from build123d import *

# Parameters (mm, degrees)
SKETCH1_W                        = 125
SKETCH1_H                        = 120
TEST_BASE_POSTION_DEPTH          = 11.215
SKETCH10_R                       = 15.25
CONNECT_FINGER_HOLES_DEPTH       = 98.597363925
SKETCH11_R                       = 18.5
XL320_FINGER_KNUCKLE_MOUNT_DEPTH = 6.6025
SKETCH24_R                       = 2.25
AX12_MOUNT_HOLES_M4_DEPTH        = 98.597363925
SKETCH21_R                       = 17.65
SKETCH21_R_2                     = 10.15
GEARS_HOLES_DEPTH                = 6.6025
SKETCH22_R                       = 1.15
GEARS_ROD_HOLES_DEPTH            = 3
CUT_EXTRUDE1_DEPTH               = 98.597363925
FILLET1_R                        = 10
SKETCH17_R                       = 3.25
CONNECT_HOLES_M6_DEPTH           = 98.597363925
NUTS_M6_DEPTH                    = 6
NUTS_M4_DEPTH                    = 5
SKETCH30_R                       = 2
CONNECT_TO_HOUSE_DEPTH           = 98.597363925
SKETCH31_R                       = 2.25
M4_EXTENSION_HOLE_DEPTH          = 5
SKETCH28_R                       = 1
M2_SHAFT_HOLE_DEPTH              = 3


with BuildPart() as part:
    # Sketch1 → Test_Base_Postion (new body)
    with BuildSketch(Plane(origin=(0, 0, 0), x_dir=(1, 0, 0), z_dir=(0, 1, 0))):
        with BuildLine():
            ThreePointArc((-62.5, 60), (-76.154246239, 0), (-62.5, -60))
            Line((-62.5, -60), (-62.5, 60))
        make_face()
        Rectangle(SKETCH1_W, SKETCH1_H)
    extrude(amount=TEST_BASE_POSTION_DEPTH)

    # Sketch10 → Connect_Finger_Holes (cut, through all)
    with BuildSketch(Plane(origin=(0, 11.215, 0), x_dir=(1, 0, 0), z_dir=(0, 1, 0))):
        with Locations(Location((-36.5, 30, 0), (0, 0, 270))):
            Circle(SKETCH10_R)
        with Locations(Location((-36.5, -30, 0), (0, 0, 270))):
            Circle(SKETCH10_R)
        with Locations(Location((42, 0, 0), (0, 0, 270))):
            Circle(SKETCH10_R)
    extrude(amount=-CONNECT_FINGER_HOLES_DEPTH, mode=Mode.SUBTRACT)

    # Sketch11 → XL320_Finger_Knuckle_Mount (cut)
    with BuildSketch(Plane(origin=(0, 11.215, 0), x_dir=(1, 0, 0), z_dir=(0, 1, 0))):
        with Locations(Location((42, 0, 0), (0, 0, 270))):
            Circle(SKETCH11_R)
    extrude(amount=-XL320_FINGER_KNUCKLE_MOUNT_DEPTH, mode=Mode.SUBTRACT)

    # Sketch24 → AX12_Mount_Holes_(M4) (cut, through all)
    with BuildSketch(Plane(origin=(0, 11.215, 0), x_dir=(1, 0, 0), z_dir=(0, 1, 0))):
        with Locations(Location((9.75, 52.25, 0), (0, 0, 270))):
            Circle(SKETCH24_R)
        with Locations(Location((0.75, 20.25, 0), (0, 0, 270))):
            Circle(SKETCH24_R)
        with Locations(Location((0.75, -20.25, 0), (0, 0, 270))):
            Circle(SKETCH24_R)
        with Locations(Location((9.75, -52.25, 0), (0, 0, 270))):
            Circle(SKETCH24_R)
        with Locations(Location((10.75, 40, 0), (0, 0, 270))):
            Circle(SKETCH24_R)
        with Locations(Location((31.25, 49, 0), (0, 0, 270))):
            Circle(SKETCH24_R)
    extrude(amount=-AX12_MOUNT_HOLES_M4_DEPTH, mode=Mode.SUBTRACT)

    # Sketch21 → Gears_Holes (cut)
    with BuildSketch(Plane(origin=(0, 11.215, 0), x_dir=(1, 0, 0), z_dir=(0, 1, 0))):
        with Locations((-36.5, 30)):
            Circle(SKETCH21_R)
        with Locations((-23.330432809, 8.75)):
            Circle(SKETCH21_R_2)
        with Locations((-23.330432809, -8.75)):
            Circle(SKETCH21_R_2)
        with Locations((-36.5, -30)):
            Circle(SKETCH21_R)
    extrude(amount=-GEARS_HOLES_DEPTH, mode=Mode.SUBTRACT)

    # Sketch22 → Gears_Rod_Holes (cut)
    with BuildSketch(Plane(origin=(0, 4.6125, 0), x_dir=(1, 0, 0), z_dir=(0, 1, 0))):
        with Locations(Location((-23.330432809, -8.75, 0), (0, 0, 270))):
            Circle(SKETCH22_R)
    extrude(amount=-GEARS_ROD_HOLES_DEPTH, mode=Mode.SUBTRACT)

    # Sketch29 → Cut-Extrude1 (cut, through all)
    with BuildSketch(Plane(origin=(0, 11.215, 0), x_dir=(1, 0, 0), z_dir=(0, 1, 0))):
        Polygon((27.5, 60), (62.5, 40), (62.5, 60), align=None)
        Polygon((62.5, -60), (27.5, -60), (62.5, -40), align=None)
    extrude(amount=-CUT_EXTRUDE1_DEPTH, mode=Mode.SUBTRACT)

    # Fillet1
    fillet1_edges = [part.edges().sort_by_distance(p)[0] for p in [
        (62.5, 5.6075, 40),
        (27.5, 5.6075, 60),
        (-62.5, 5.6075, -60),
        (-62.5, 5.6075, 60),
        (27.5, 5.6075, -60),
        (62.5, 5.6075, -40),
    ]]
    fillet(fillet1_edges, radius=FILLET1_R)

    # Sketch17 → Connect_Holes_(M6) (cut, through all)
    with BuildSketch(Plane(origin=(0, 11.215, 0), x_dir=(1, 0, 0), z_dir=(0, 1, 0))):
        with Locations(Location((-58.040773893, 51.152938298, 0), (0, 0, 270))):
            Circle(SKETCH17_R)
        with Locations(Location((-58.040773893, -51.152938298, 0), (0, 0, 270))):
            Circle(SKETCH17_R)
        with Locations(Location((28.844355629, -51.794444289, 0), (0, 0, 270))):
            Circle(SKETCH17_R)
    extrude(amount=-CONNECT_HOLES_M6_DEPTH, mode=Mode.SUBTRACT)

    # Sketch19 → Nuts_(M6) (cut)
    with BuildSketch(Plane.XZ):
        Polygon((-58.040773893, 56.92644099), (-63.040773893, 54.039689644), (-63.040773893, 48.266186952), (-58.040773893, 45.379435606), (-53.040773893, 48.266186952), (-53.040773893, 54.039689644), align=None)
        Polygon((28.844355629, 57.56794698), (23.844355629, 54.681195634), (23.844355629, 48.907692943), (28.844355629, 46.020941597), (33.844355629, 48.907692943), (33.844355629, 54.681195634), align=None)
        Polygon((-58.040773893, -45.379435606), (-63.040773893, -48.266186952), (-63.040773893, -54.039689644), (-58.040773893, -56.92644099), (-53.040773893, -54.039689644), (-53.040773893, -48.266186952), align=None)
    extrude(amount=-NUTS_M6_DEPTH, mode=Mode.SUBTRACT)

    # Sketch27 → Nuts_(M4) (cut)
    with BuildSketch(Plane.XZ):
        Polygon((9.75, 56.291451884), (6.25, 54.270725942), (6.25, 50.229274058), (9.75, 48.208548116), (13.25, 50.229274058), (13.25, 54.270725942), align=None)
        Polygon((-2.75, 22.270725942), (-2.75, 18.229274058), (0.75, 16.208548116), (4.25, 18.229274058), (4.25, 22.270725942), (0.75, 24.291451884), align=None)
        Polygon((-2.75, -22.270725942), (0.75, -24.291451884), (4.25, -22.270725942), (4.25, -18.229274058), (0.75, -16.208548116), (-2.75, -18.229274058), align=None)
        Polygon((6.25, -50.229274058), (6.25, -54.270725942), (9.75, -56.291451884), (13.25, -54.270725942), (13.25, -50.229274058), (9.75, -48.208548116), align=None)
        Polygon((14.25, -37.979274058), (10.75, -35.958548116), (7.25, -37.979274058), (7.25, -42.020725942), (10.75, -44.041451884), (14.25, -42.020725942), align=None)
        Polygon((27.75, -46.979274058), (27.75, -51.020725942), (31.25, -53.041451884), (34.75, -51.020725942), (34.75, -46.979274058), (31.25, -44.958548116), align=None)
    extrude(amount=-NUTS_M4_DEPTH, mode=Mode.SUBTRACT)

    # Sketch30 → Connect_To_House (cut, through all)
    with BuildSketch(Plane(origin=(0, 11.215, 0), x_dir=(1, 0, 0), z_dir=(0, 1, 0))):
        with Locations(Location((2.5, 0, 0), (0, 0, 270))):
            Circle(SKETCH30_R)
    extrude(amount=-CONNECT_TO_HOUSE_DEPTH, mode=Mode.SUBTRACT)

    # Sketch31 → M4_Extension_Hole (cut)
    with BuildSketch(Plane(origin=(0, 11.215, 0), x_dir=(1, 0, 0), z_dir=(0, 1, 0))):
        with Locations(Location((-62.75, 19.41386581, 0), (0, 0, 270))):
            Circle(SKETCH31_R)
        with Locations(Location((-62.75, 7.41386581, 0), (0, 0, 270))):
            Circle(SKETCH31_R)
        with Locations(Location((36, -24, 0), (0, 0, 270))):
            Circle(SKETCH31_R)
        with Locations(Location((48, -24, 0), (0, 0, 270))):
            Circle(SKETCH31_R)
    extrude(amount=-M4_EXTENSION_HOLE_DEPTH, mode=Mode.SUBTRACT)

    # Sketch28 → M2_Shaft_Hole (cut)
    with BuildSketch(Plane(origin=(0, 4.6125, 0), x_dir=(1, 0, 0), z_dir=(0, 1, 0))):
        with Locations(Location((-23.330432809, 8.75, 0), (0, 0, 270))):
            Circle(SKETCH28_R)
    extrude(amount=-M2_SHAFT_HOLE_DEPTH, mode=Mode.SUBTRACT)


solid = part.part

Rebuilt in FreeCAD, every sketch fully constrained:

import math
import FreeCAD as App
import Part
import Sketcher
from FreeCAD import Vector
Q = App.Units.Quantity


def edges_at(feature, points):
    """Names of the edges that pass closest to the given points."""
    edges = feature.Shape.Edges
    near = lambda p: min(range(len(edges)), key=lambda i: edges[i].distToShape(Part.Vertex(*p))[0])
    return sorted({f"Edge{near(p) + 1}" for p in points})

doc = App.newDocument("Part")
params = doc.addObject("Spreadsheet::Sheet", "Params")
for row, (alias, value) in enumerate([
    ("sketch1_width", "125 mm"),
    ("sketch1_height", "120 mm"),
    ("pad1_length", "11.215 mm"),
    ("sketch2_diameter", "30.5 mm"),
    ("sketch3_diameter", "37 mm"),
    ("pocket2_length", "6.6025 mm"),
    ("sketch4_diameter", "4.5 mm"),
    ("sketch5_radius", "10.15 mm"),
    ("sketch5_radius2", "17.65 mm"),
    ("pocket4_length", "6.6025 mm"),
    ("sketch6_diameter", "2.3 mm"),
    ("pocket5_length", "3 mm"),
    ("sketch7_width", "35 mm"),
    ("sketch7_height", "20 mm"),
    ("fillet_radius", "10 mm"),
    ("sketch8_diameter", "6.5 mm"),
    ("pocket8_length", "6 mm"),
    ("pocket9_length", "5 mm"),
    ("sketch11_diameter", "4 mm"),
    ("sketch12_diameter", "4.5 mm"),
    ("pocket11_length", "5 mm"),
    ("sketch13_diameter", "2 mm"),
    ("pocket12_length", "3 mm"),
], start=1):
    params.set(f"A{row}", alias)
    params.set(f"B{row}", "=" + value)
    params.setAlias(f"B{row}", alias)

body = doc.addObject("PartDesign::Body", "Body")

# Sketch on XZ plane
sketch1 = body.newObject("Sketcher::SketchObject", "Sketch")
sketch1.AttachmentSupport = (doc.getObject("XZ_Plane"), [""])
sketch1.MapMode = "FlatFace"
sketch1.addGeometry([
    Part.ArcOfCircle(Part.Circle(Vector(62.5, 0, 0), Vector(0, 0, 1), 138.654246), math.radians(154.358994), math.radians(205.641006)),
    Part.LineSegment(Vector(-62.5, 60, 0), Vector(62.5, 60, 0)),
    Part.LineSegment(Vector(62.5, 60, 0), Vector(62.5, -60, 0)),
    Part.LineSegment(Vector(62.5, -60, 0), Vector(-62.5, -60, 0)),
], False)
sketch1.addConstraint([
    Sketcher.Constraint("Coincident", 0, 1, 1, 1),
    Sketcher.Constraint("Coincident", 1, 2, 2, 1),
    Sketcher.Constraint("Coincident", 2, 2, 3, 1),
    Sketcher.Constraint("Coincident", 3, 2, 0, 2),
    Sketcher.Constraint("Horizontal", 1),
    Sketcher.Constraint("Vertical", 2),
    Sketcher.Constraint("Horizontal", 3),
    Sketcher.Constraint("Symmetric", 0, 1, 2, 2, -1, 1),
    Sketcher.Constraint("PointOnObject", 0, 3, -1),
    Sketcher.Constraint("Vertical", 0, 3, 1, 2),
    Sketcher.Constraint("DistanceX", 1, 1, 1, 2, 125.0),
    Sketcher.Constraint("DistanceY", 2, 2, 2, 1, 120.0),
])
sketch1.setExpression("Constraints[10]", "Params.sketch1_width")
sketch1.setExpression("Constraints[11]", "Params.sketch1_height")
pad1 = body.newObject("PartDesign::Pad", "Pad")
pad1.Profile = sketch1
pad1.setExpression("Length", "Params.pad1_length")
pad1.Reversed = True

# Sketch on XZ plane
sketch2 = body.newObject("Sketcher::SketchObject", "Sketch001")
sketch2.AttachmentSupport = (doc.getObject("XZ_Plane"), [""])
sketch2.MapMode = "FlatFace"
sketch2.AttachmentOffset = App.Placement(Vector(0, 0, -11.215), App.Rotation())
sketch2.addGeometry([
    Part.Circle(Vector(-36.5, -30, 0), Vector(0, 0, 1), 15.25),
    Part.Circle(Vector(-36.5, 30, 0), Vector(0, 0, 1), 15.25),
    Part.Circle(Vector(42, 0, 0), Vector(0, 0, 1), 15.25),
], False)
sketch2.addConstraint([
    Sketcher.Constraint("Equal", 0, 1),
    Sketcher.Constraint("Equal", 1, 2),
    Sketcher.Constraint("Symmetric", 0, 3, 1, 3, -1),
    Sketcher.Constraint("PointOnObject", 2, 3, -1),
    Sketcher.Constraint("Diameter", 0, 30.5),
    Sketcher.Constraint("DistanceY", 0, 3, -1, 1, 30.0),
    Sketcher.Constraint("DistanceX", -1, 1, 2, 3, 42.0),
    Sketcher.Constraint("DistanceX", 0, 3, -1, 1, 36.5),
])
sketch2.setExpression("Constraints[4]", "Params.sketch2_diameter")
pocket1 = body.newObject("PartDesign::Pocket", "Pocket")
pocket1.Profile = sketch2
pocket1.Type = "ThroughAll"
pocket1.Reversed = True

# Sketch on XZ plane
sketch3 = body.newObject("Sketcher::SketchObject", "Sketch002")
sketch3.AttachmentSupport = (doc.getObject("XZ_Plane"), [""])
sketch3.MapMode = "FlatFace"
sketch3.AttachmentOffset = App.Placement(Vector(0, 0, -11.215), App.Rotation())
sketch3.addGeometry(Part.Circle(Vector(42, 0, 0), Vector(0, 0, 1), 18.5), False)
sketch3.addConstraint([
    Sketcher.Constraint("PointOnObject", 0, 3, -1),
    Sketcher.Constraint("Diameter", 0, 37.0),
    Sketcher.Constraint("DistanceX", -1, 1, 0, 3, 42.0),
])
sketch3.setExpression("Constraints[1]", "Params.sketch3_diameter")
pocket2 = body.newObject("PartDesign::Pocket", "Pocket001")
pocket2.Profile = sketch3
pocket2.setExpression("Length", "Params.pocket2_length")
pocket2.Reversed = True

# Sketch on XZ plane
sketch4 = body.newObject("Sketcher::SketchObject", "Sketch003")
sketch4.AttachmentSupport = (doc.getObject("XZ_Plane"), [""])
sketch4.MapMode = "FlatFace"
sketch4.AttachmentOffset = App.Placement(Vector(0, 0, -11.215), App.Rotation())
sketch4.addGeometry([
    Part.Circle(Vector(9.75, -52.25, 0), Vector(0, 0, 1), 2.25),  # 0
    Part.Circle(Vector(0.75, -20.25, 0), Vector(0, 0, 1), 2.25),  # 1
    Part.Circle(Vector(0.75, 20.25, 0), Vector(0, 0, 1), 2.25),  # 2
    Part.Circle(Vector(9.75, 52.25, 0), Vector(0, 0, 1), 2.25),  # 3
    Part.Circle(Vector(10.75, -40, 0), Vector(0, 0, 1), 2.25),  # 4
    Part.Circle(Vector(31.25, -49, 0), Vector(0, 0, 1), 2.25),  # 5
], False)
sketch4.addConstraint([
    Sketcher.Constraint("Equal", 0, 1),
    Sketcher.Constraint("Equal", 1, 2),
    Sketcher.Constraint("Equal", 2, 3),
    Sketcher.Constraint("Equal", 3, 4),
    Sketcher.Constraint("Equal", 4, 5),
    Sketcher.Constraint("Symmetric", 1, 3, 2, 3, -1),
    Sketcher.Constraint("Symmetric", 0, 3, 3, 3, -1),
    Sketcher.Constraint("Diameter", 0, 4.5),
    Sketcher.Constraint("DistanceY", 4, 3, -1, 1, 40.0),
    Sketcher.Constraint("DistanceY", 5, 3, -1, 1, 49.0),
    Sketcher.Constraint("DistanceX", 1, 3, 0, 3, 9.0),
    Sketcher.Constraint("DistanceY", 0, 3, 1, 3, 32.0),
    Sketcher.Constraint("DistanceX", 0, 3, 4, 3, 1.0),
    Sketcher.Constraint("DistanceY", 1, 3, 2, 3, 40.5),
    Sketcher.Constraint("DistanceX", 0, 3, 5, 3, 21.5),
    Sketcher.Constraint("DistanceX", -1, 1, 0, 3, 9.75),
])
sketch4.setExpression("Constraints[7]", "Params.sketch4_diameter")
pocket3 = body.newObject("PartDesign::Pocket", "Pocket002")
pocket3.Profile = sketch4
pocket3.Type = "ThroughAll"
pocket3.Reversed = True

# Sketch on XZ plane
sketch5 = body.newObject("Sketcher::SketchObject", "Sketch004")
sketch5.AttachmentSupport = (doc.getObject("XZ_Plane"), [""])
sketch5.MapMode = "FlatFace"
sketch5.AttachmentOffset = App.Placement(Vector(0, 0, -11.215), App.Rotation())
sketch5.addGeometry([
    Part.ArcOfCircle(Part.Circle(Vector(-23.330433, 8.75, 0), Vector(0, 0, 1), 10.15), math.radians(-59.549686), math.radians(86.942221)),  # 0
    Part.ArcOfCircle(Part.Circle(Vector(-23.330433, -8.75, 0), Vector(0, 0, 1), 10.15), math.radians(-86.942221), math.radians(59.549686)),  # 1
    Part.ArcOfCircle(Part.Circle(Vector(-36.5, -30, 0), Vector(0, 0, 1), 17.65), math.radians(77.394318), math.radians(399.029021)),  # 2
    Part.ArcOfCircle(Part.Circle(Vector(-23.330433, -8.75, 0), Vector(0, 0, 1), 10.15), math.radians(120.450314), math.radians(203.36556)),  # 3
    Part.ArcOfCircle(Part.Circle(Vector(-23.330433, 8.75, 0), Vector(0, 0, 1), 10.15), math.radians(156.63444), math.radians(239.549686)),  # 4
    Part.ArcOfCircle(Part.Circle(Vector(-36.5, 30, 0), Vector(0, 0, 1), 17.65), math.radians(-39.029021), math.radians(282.605682)),  # 5
], False)
sketch5.addConstraint([
    Sketcher.Constraint("Coincident", 0, 1, 1, 2),
    Sketcher.Constraint("Coincident", 1, 1, 2, 2),
    Sketcher.Constraint("Coincident", 2, 1, 3, 2),
    Sketcher.Constraint("Coincident", 3, 1, 4, 2),
    Sketcher.Constraint("Coincident", 4, 1, 5, 2),
    Sketcher.Constraint("Coincident", 5, 1, 0, 2),
    Sketcher.Constraint("Coincident", 3, 3, 1, 3),
    Sketcher.Constraint("Coincident", 4, 3, 0, 3),
    Sketcher.Constraint("Equal", 0, 1),
    Sketcher.Constraint("Equal", 1, 3),
    Sketcher.Constraint("Equal", 3, 4),
    Sketcher.Constraint("Equal", 2, 5),
    Sketcher.Constraint("Symmetric", 0, 3, 1, 3, -1),
    Sketcher.Constraint("Symmetric", 2, 3, 5, 3, -1),
    Sketcher.Constraint("Radius", 0, 10.15),
    Sketcher.Constraint("Radius", 2, 17.65),
    Sketcher.Constraint("DistanceY", 2, 3, -1, 1, 30.0),
    Sketcher.Constraint("DistanceX", 2, 3, -1, 1, 36.5),
    Sketcher.Constraint("DistanceY", 1, 3, 0, 3, 17.5),
    Sketcher.Constraint("DistanceX", 1, 1, -1, 1, 22.789002),
])
sketch5.setExpression("Constraints[14]", "Params.sketch5_radius")
sketch5.setExpression("Constraints[15]", "Params.sketch5_radius2")
pocket4 = body.newObject("PartDesign::Pocket", "Pocket003")
pocket4.Profile = sketch5
pocket4.setExpression("Length", "Params.pocket4_length")
pocket4.Reversed = True

# Sketch on XZ plane
sketch6 = body.newObject("Sketcher::SketchObject", "Sketch005")
sketch6.AttachmentSupport = (doc.getObject("XZ_Plane"), [""])
sketch6.MapMode = "FlatFace"
sketch6.AttachmentOffset = App.Placement(Vector(0, 0, -4.6125), App.Rotation())
sketch6.addGeometry(Part.Circle(Vector(-23.330433, 8.75, 0), Vector(0, 0, 1), 1.15), False)
sketch6.addConstraint([
    Sketcher.Constraint("Diameter", 0, 2.3),
    Sketcher.Constraint("DistanceY", -1, 1, 0, 3, 8.75),
    Sketcher.Constraint("DistanceX", 0, 3, -1, 1, 23.330433),
])
sketch6.setExpression("Constraints[0]", "Params.sketch6_diameter")
pocket5 = body.newObject("PartDesign::Pocket", "Pocket004")
pocket5.Profile = sketch6
pocket5.setExpression("Length", "Params.pocket5_length")
pocket5.Reversed = True

# Sketch on XZ plane
sketch7 = body.newObject("Sketcher::SketchObject", "Sketch006")
sketch7.AttachmentSupport = (doc.getObject("XZ_Plane"), [""])
sketch7.MapMode = "FlatFace"
sketch7.AttachmentOffset = App.Placement(Vector(0, 0, -11.215), App.Rotation())
sketch7.addGeometry([
    Part.LineSegment(Vector(27.5, -60, 0), Vector(62.5, -40, 0)),  # 0
    Part.LineSegment(Vector(62.5, -40, 0), Vector(62.5, -60, 0)),  # 1
    Part.LineSegment(Vector(62.5, -60, 0), Vector(27.5, -60, 0)),  # 2
    Part.LineSegment(Vector(27.5, 60, 0), Vector(62.5, 60, 0)),  # 3
    Part.LineSegment(Vector(62.5, 60, 0), Vector(62.5, 40, 0)),  # 4
    Part.LineSegment(Vector(62.5, 40, 0), Vector(27.5, 60, 0)),  # 5
], False)
sketch7.addConstraint([
    Sketcher.Constraint("Coincident", 0, 2, 1, 1),
    Sketcher.Constraint("Coincident", 1, 2, 2, 1),
    Sketcher.Constraint("Coincident", 2, 2, 0, 1),
    Sketcher.Constraint("Coincident", 3, 2, 4, 1),
    Sketcher.Constraint("Coincident", 4, 2, 5, 1),
    Sketcher.Constraint("Coincident", 5, 2, 3, 1),
    Sketcher.Constraint("Vertical", 1),
    Sketcher.Constraint("Horizontal", 2),
    Sketcher.Constraint("Horizontal", 3),
    Sketcher.Constraint("Vertical", 4),
    Sketcher.Constraint("Symmetric", 1, 2, 3, 2, -1),
    Sketcher.Constraint("Vertical", 2, 2, 5, 2),
    Sketcher.Constraint("Equal", 1, 4),
    Sketcher.Constraint("DistanceX", 2, 2, 2, 1, 35.0),
    Sketcher.Constraint("DistanceY", 1, 2, 1, 1, 20.0),
    Sketcher.Constraint("DistanceY", 0, 2, -1, 1, 40.0),
    Sketcher.Constraint("DistanceX", -1, 1, 0, 2, 62.5),
])
sketch7.setExpression("Constraints[13]", "Params.sketch7_width")
sketch7.setExpression("Constraints[14]", "Params.sketch7_height")
pocket6 = body.newObject("PartDesign::Pocket", "Pocket005")
pocket6.Profile = sketch7
pocket6.Type = "ThroughAll"
pocket6.Reversed = True
doc.recompute()

fillet = body.newObject("PartDesign::Fillet", "Fillet")
fillet.Base = (pocket6, edges_at(pocket6, [
    (62.5, 5.607, 40),
    (27.5, 5.607, 60),
    (-62.5, 5.607, -60),
    (-62.5, 5.607, 60),
    (27.5, 5.607, -60),
    (62.5, 5.607, -40),
]))
fillet.setExpression("Radius", "Params.fillet_radius")

# Sketch on XZ plane
sketch8 = body.newObject("Sketcher::SketchObject", "Sketch007")
sketch8.AttachmentSupport = (doc.getObject("XZ_Plane"), [""])
sketch8.MapMode = "FlatFace"
sketch8.AttachmentOffset = App.Placement(Vector(0, 0, -11.215), App.Rotation())
sketch8.addGeometry([
    Part.Circle(Vector(-58.040774, -51.152938, 0), Vector(0, 0, 1), 3.25),
    Part.Circle(Vector(-58.040774, 51.152938, 0), Vector(0, 0, 1), 3.25),
    Part.Circle(Vector(28.844356, 51.794444, 0), Vector(0, 0, 1), 3.25),
], False)
sketch8.addConstraint([
    Sketcher.Constraint("Equal", 0, 1),
    Sketcher.Constraint("Equal", 1, 2),
    Sketcher.Constraint("Symmetric", 0, 3, 1, 3, -1),
    Sketcher.Constraint("Diameter", 0, 6.5),
    Sketcher.Constraint("DistanceY", 0, 3, -1, 1, 51.152938),
    Sketcher.Constraint("DistanceX", 1, 3, 2, 3, 86.88513),
    Sketcher.Constraint("DistanceX", 0, 3, -1, 1, 58.040774),
    Sketcher.Constraint("DistanceY", -1, 1, 2, 3, 51.794444),
])
sketch8.setExpression("Constraints[3]", "Params.sketch8_diameter")
pocket7 = body.newObject("PartDesign::Pocket", "Pocket006")
pocket7.Profile = sketch8
pocket7.Type = "ThroughAll"
pocket7.Reversed = True

# Sketch on XZ plane
sketch9 = body.newObject("Sketcher::SketchObject", "Sketch008")
sketch9.AttachmentSupport = (doc.getObject("XZ_Plane"), [""])
sketch9.MapMode = "FlatFace"
sketch9.addGeometry([
    Part.LineSegment(Vector(-58.040774, 56.926441, 0), Vector(-63.040774, 54.03969, 0)),  # 0
    Part.LineSegment(Vector(-63.040774, 54.03969, 0), Vector(-63.040774, 48.266187, 0)),  # 1
    Part.LineSegment(Vector(-63.040774, 48.266187, 0), Vector(-58.040774, 45.379436, 0)),  # 2
    Part.LineSegment(Vector(-58.040774, 45.379436, 0), Vector(-53.040774, 48.266187, 0)),  # 3
    Part.LineSegment(Vector(-53.040774, 48.266187, 0), Vector(-53.040774, 54.03969, 0)),  # 4
    Part.LineSegment(Vector(-53.040774, 54.03969, 0), Vector(-58.040774, 56.926441, 0)),  # 5
    Part.LineSegment(Vector(28.844356, 57.567947, 0), Vector(23.844356, 54.681196, 0)),  # 6
    Part.LineSegment(Vector(23.844356, 54.681196, 0), Vector(23.844356, 48.907693, 0)),  # 7
    Part.LineSegment(Vector(23.844356, 48.907693, 0), Vector(28.844356, 46.020942, 0)),  # 8
    Part.LineSegment(Vector(28.844356, 46.020942, 0), Vector(33.844356, 48.907693, 0)),  # 9
    Part.LineSegment(Vector(33.844356, 48.907693, 0), Vector(33.844356, 54.681196, 0)),  # 10
    Part.LineSegment(Vector(33.844356, 54.681196, 0), Vector(28.844356, 57.567947, 0)),  # 11
    Part.LineSegment(Vector(-58.040774, -45.379436, 0), Vector(-63.040774, -48.266187, 0)),  # 12
    Part.LineSegment(Vector(-63.040774, -48.266187, 0), Vector(-63.040774, -54.03969, 0)),  # 13
    Part.LineSegment(Vector(-63.040774, -54.03969, 0), Vector(-58.040774, -56.926441, 0)),  # 14
    Part.LineSegment(Vector(-58.040774, -56.926441, 0), Vector(-53.040774, -54.03969, 0)),  # 15
    Part.LineSegment(Vector(-53.040774, -54.03969, 0), Vector(-53.040774, -48.266187, 0)),  # 16
    Part.LineSegment(Vector(-53.040774, -48.266187, 0), Vector(-58.040774, -45.379436, 0)),  # 17
], False)
sketch9.addConstraint([
    Sketcher.Constraint("Coincident", 0, 2, 1, 1),
    Sketcher.Constraint("Coincident", 1, 2, 2, 1),
    Sketcher.Constraint("Coincident", 2, 2, 3, 1),
    Sketcher.Constraint("Coincident", 3, 2, 4, 1),
    Sketcher.Constraint("Coincident", 4, 2, 5, 1),
    Sketcher.Constraint("Coincident", 5, 2, 0, 1),
    Sketcher.Constraint("Coincident", 6, 2, 7, 1),
    Sketcher.Constraint("Coincident", 7, 2, 8, 1),
    Sketcher.Constraint("Coincident", 8, 2, 9, 1),
    Sketcher.Constraint("Coincident", 9, 2, 10, 1),
    Sketcher.Constraint("Coincident", 10, 2, 11, 1),
    Sketcher.Constraint("Coincident", 11, 2, 6, 1),
    Sketcher.Constraint("Coincident", 12, 2, 13, 1),
    Sketcher.Constraint("Coincident", 13, 2, 14, 1),
    Sketcher.Constraint("Coincident", 14, 2, 15, 1),
    Sketcher.Constraint("Coincident", 15, 2, 16, 1),
    Sketcher.Constraint("Coincident", 16, 2, 17, 1),
    Sketcher.Constraint("Coincident", 17, 2, 12, 1),
    Sketcher.Constraint("Vertical", 1),
    Sketcher.Constraint("Vertical", 4),
    Sketcher.Constraint("Vertical", 7),
    Sketcher.Constraint("Vertical", 10),
    Sketcher.Constraint("Vertical", 13),
    Sketcher.Constraint("Vertical", 16),
    Sketcher.Constraint("Symmetric", 1, 2, 12, 2, -1),
    Sketcher.Constraint("Symmetric", 5, 2, 14, 2, -1),
    Sketcher.Constraint("Symmetric", 4, 2, 15, 2, -1),
    Sketcher.Constraint("Symmetric", 2, 2, 17, 2, -1),
    Sketcher.Constraint("Parallel", 0, 3),
    Sketcher.Constraint("Parallel", 2, 5),
    Sketcher.Constraint("Parallel", 3, 6),
    Sketcher.Constraint("Parallel", 5, 8),
    Sketcher.Constraint("Parallel", 6, 9),
    Sketcher.Constraint("Parallel", 8, 11),
    Sketcher.Constraint("Parallel", 9, 12),
    Sketcher.Constraint("Parallel", 11, 14),
    Sketcher.Constraint("Parallel", 14, 17),
    Sketcher.Constraint("Horizontal", 1, 2, 3, 2),
    Sketcher.Constraint("Horizontal", 0, 2, 4, 2),
    Sketcher.Constraint("Horizontal", 7, 2, 9, 2),
    Sketcher.Constraint("Horizontal", 6, 2, 10, 2),
    Sketcher.Constraint("Equal", 4, 7),
    Sketcher.Constraint("Equal", 5, 6),
    Sketcher.Constraint("Angle", 0, Q("-150 deg")),
    Sketcher.Constraint("DistanceX", 1, 2, 2, 2, 5.0),
    Sketcher.Constraint("DistanceY", 1, 2, 1, 1, 5.773503),
    Sketcher.Constraint("DistanceY", -1, 1, 0, 2, 54.03969),
    Sketcher.Constraint("DistanceY", -1, 1, 8, 2, 46.020942),
    Sketcher.Constraint("DistanceX", 4, 2, 6, 2, 76.88513),
    Sketcher.Constraint("DistanceX", 0, 2, -1, 1, 63.040774),
])
pocket8 = body.newObject("PartDesign::Pocket", "Pocket007")
pocket8.Profile = sketch9
pocket8.setExpression("Length", "Params.pocket8_length")

# Sketch on XZ plane
sketch10 = body.newObject("Sketcher::SketchObject", "Sketch009")
sketch10.AttachmentSupport = (doc.getObject("XZ_Plane"), [""])
sketch10.MapMode = "FlatFace"
sketch10.addGeometry([
    Part.LineSegment(Vector(9.75, 56.291452, 0), Vector(6.25, 54.270726, 0)),  # 0
    Part.LineSegment(Vector(6.25, 54.270726, 0), Vector(6.25, 50.229274, 0)),  # 1
    Part.LineSegment(Vector(6.25, 50.229274, 0), Vector(9.75, 48.208548, 0)),  # 2
    Part.LineSegment(Vector(9.75, 48.208548, 0), Vector(13.25, 50.229274, 0)),  # 3
    Part.LineSegment(Vector(13.25, 50.229274, 0), Vector(13.25, 54.270726, 0)),  # 4
    Part.LineSegment(Vector(13.25, 54.270726, 0), Vector(9.75, 56.291452, 0)),  # 5
    Part.LineSegment(Vector(-2.75, 22.270726, 0), Vector(-2.75, 18.229274, 0)),  # 6
    Part.LineSegment(Vector(-2.75, 18.229274, 0), Vector(0.75, 16.208548, 0)),  # 7
    Part.LineSegment(Vector(0.75, 16.208548, 0), Vector(4.25, 18.229274, 0)),  # 8
    Part.LineSegment(Vector(4.25, 18.229274, 0), Vector(4.25, 22.270726, 0)),  # 9
    Part.LineSegment(Vector(4.25, 22.270726, 0), Vector(0.75, 24.291452, 0)),  # 10
    Part.LineSegment(Vector(0.75, 24.291452, 0), Vector(-2.75, 22.270726, 0)),  # 11
    Part.LineSegment(Vector(-2.75, -22.270726, 0), Vector(0.75, -24.291452, 0)),  # 12
    Part.LineSegment(Vector(0.75, -24.291452, 0), Vector(4.25, -22.270726, 0)),  # 13
    Part.LineSegment(Vector(4.25, -22.270726, 0), Vector(4.25, -18.229274, 0)),  # 14
    Part.LineSegment(Vector(4.25, -18.229274, 0), Vector(0.75, -16.208548, 0)),  # 15
    Part.LineSegment(Vector(0.75, -16.208548, 0), Vector(-2.75, -18.229274, 0)),  # 16
    Part.LineSegment(Vector(-2.75, -18.229274, 0), Vector(-2.75, -22.270726, 0)),  # 17
    Part.LineSegment(Vector(6.25, -50.229274, 0), Vector(6.25, -54.270726, 0)),  # 18
    Part.LineSegment(Vector(6.25, -54.270726, 0), Vector(9.75, -56.291452, 0)),  # 19
    Part.LineSegment(Vector(9.75, -56.291452, 0), Vector(13.25, -54.270726, 0)),  # 20
    Part.LineSegment(Vector(13.25, -54.270726, 0), Vector(13.25, -50.229274, 0)),  # 21
    Part.LineSegment(Vector(13.25, -50.229274, 0), Vector(9.75, -48.208548, 0)),  # 22
    Part.LineSegment(Vector(9.75, -48.208548, 0), Vector(6.25, -50.229274, 0)),  # 23
    Part.LineSegment(Vector(14.25, -37.979274, 0), Vector(10.75, -35.958548, 0)),  # 24
    Part.LineSegment(Vector(10.75, -35.958548, 0), Vector(7.25, -37.979274, 0)),  # 25
    Part.LineSegment(Vector(7.25, -37.979274, 0), Vector(7.25, -42.020726, 0)),  # 26
    Part.LineSegment(Vector(7.25, -42.020726, 0), Vector(10.75, -44.041452, 0)),  # 27
    Part.LineSegment(Vector(10.75, -44.041452, 0), Vector(14.25, -42.020726, 0)),  # 28
    Part.LineSegment(Vector(14.25, -42.020726, 0), Vector(14.25, -37.979274, 0)),  # 29
    Part.LineSegment(Vector(27.75, -46.979274, 0), Vector(27.75, -51.020726, 0)),  # 30
    Part.LineSegment(Vector(27.75, -51.020726, 0), Vector(31.25, -53.041452, 0)),  # 31
    Part.LineSegment(Vector(31.25, -53.041452, 0), Vector(34.75, -51.020726, 0)),  # 32
    Part.LineSegment(Vector(34.75, -51.020726, 0), Vector(34.75, -46.979274, 0)),  # 33
    Part.LineSegment(Vector(34.75, -46.979274, 0), Vector(31.25, -44.958548, 0)),  # 34
    Part.LineSegment(Vector(31.25, -44.958548, 0), Vector(27.75, -46.979274, 0)),  # 35
], False)
sketch10.addConstraint([
    Sketcher.Constraint("Coincident", 0, 2, 1, 1),
    Sketcher.Constraint("Coincident", 1, 2, 2, 1),
    Sketcher.Constraint("Coincident", 2, 2, 3, 1),
    Sketcher.Constraint("Coincident", 3, 2, 4, 1),
    Sketcher.Constraint("Coincident", 4, 2, 5, 1),
    Sketcher.Constraint("Coincident", 5, 2, 0, 1),
    Sketcher.Constraint("Coincident", 6, 2, 7, 1),
    Sketcher.Constraint("Coincident", 7, 2, 8, 1),
    Sketcher.Constraint("Coincident", 8, 2, 9, 1),
    Sketcher.Constraint("Coincident", 9, 2, 10, 1),
    Sketcher.Constraint("Coincident", 10, 2, 11, 1),
    Sketcher.Constraint("Coincident", 11, 2, 6, 1),
    Sketcher.Constraint("Coincident", 12, 2, 13, 1),
    Sketcher.Constraint("Coincident", 13, 2, 14, 1),
    Sketcher.Constraint("Coincident", 14, 2, 15, 1),
    Sketcher.Constraint("Coincident", 15, 2, 16, 1),
    Sketcher.Constraint("Coincident", 16, 2, 17, 1),
    Sketcher.Constraint("Coincident", 17, 2, 12, 1),
    Sketcher.Constraint("Coincident", 18, 2, 19, 1),
    Sketcher.Constraint("Coincident", 19, 2, 20, 1),
    Sketcher.Constraint("Coincident", 20, 2, 21, 1),
    Sketcher.Constraint("Coincident", 21, 2, 22, 1),
    Sketcher.Constraint("Coincident", 22, 2, 23, 1),
    Sketcher.Constraint("Coincident", 23, 2, 18, 1),
    Sketcher.Constraint("Coincident", 24, 2, 25, 1),
    Sketcher.Constraint("Coincident", 25, 2, 26, 1),
    Sketcher.Constraint("Coincident", 26, 2, 27, 1),
    Sketcher.Constraint("Coincident", 27, 2, 28, 1),
    Sketcher.Constraint("Coincident", 28, 2, 29, 1),
    Sketcher.Constraint("Coincident", 29, 2, 24, 1),
    Sketcher.Constraint("Coincident", 30, 2, 31, 1),
    Sketcher.Constraint("Coincident", 31, 2, 32, 1),
    Sketcher.Constraint("Coincident", 32, 2, 33, 1),
    Sketcher.Constraint("Coincident", 33, 2, 34, 1),
    Sketcher.Constraint("Coincident", 34, 2, 35, 1),
    Sketcher.Constraint("Coincident", 35, 2, 30, 1),
    Sketcher.Constraint("Vertical", 1),
    Sketcher.Constraint("Vertical", 4),
    Sketcher.Constraint("Vertical", 6),
    Sketcher.Constraint("Vertical", 9),
    Sketcher.Constraint("Vertical", 14),
    Sketcher.Constraint("Vertical", 17),
    Sketcher.Constraint("Vertical", 18),
    Sketcher.Constraint("Vertical", 21),
    Sketcher.Constraint("Vertical", 26),
    Sketcher.Constraint("Vertical", 29),
    Sketcher.Constraint("Vertical", 30),
    Sketcher.Constraint("Vertical", 33),
    Sketcher.Constraint("Symmetric", 10, 2, 12, 2, -1),
    Sketcher.Constraint("Symmetric", 9, 2, 13, 2, -1),
    Sketcher.Constraint("Symmetric", 7, 2, 15, 2, -1),
    Sketcher.Constraint("Symmetric", 6, 2, 16, 2, -1),
    Sketcher.Constraint("Symmetric", 0, 2, 18, 2, -1),
    Sketcher.Constraint("Symmetric", 5, 2, 19, 2, -1),
    Sketcher.Constraint("Symmetric", 4, 2, 20, 2, -1),
    Sketcher.Constraint("Symmetric", 2, 2, 22, 2, -1),
    Sketcher.Constraint("Parallel", 0, 3),
    Sketcher.Constraint("Parallel", 2, 5),
    Sketcher.Constraint("Parallel", 5, 7),
    Sketcher.Constraint("Parallel", 3, 8),
    Sketcher.Constraint("Parallel", 7, 10),
    Sketcher.Constraint("Parallel", 8, 11),
    Sketcher.Constraint("Parallel", 10, 12),
    Sketcher.Constraint("Parallel", 11, 13),
    Sketcher.Constraint("Parallel", 12, 15),
    Sketcher.Constraint("Parallel", 19, 22),
    Sketcher.Constraint("Parallel", 20, 23),
    Sketcher.Constraint("Parallel", 22, 24),
    Sketcher.Constraint("Parallel", 23, 25),
    Sketcher.Constraint("Parallel", 24, 27),
    Sketcher.Constraint("Parallel", 25, 28),
    Sketcher.Constraint("Parallel", 27, 31),
    Sketcher.Constraint("Parallel", 28, 32),
    Sketcher.Constraint("Parallel", 31, 34),
    Sketcher.Constraint("Parallel", 32, 35),
    Sketcher.Constraint("Horizontal", 1, 2, 3, 2),
    Sketcher.Constraint("Horizontal", 0, 2, 4, 2),
    Sketcher.Constraint("Horizontal", 6, 2, 8, 2),
    Sketcher.Constraint("Horizontal", 9, 2, 11, 2),
    Sketcher.Constraint("Horizontal", 26, 2, 28, 2),
    Sketcher.Constraint("Horizontal", 25, 2, 29, 2),
    Sketcher.Constraint("Horizontal", 30, 2, 32, 2),
    Sketcher.Constraint("Horizontal", 33, 2, 35, 2),
    Sketcher.Constraint("Equal", 4, 6),
    Sketcher.Constraint("Equal", 21, 26),
    Sketcher.Constraint("Equal", 29, 30),
    Sketcher.Constraint("Equal", 5, 7),
    Sketcher.Constraint("Equal", 23, 24),
    Sketcher.Constraint("Equal", 28, 31),
    Sketcher.Constraint("Angle", 0, Q("-150 deg")),
    Sketcher.Constraint("DistanceX", 1, 2, 3, 2, 7.0),
    Sketcher.Constraint("DistanceX", 6, 2, 1, 2, 9.0),
    Sketcher.Constraint("DistanceY", 6, 2, 1, 2, 32.0),
    Sketcher.Constraint("DistanceX", 22, 2, 24, 2, 1.0),
    Sketcher.Constraint("DistanceY", 30, 2, 28, 2, 9.0),
    Sketcher.Constraint("DistanceX", 22, 2, 30, 2, 18.0),
    Sketcher.Constraint("DistanceY", 12, 2, 7, 2, 40.5),
    Sketcher.Constraint("DistanceX", -1, 1, 0, 2, 6.25),
    Sketcher.Constraint("DistanceY", 22, 2, 24, 2, 12.25),
    Sketcher.Constraint("DistanceY", 1, 2, 1, 1, 4.041452),
])
pocket9 = body.newObject("PartDesign::Pocket", "Pocket008")
pocket9.Profile = sketch10
pocket9.setExpression("Length", "Params.pocket9_length")

# Sketch on XZ plane
sketch11 = body.newObject("Sketcher::SketchObject", "Sketch010")
sketch11.AttachmentSupport = (doc.getObject("XZ_Plane"), [""])
sketch11.MapMode = "FlatFace"
sketch11.AttachmentOffset = App.Placement(Vector(0, 0, -11.215), App.Rotation())
sketch11.addGeometry(Part.Circle(Vector(2.5, 0, 0), Vector(0, 0, 1), 2), False)
sketch11.addConstraint([
    Sketcher.Constraint("PointOnObject", 0, 3, -1),
    Sketcher.Constraint("Diameter", 0, 4.0),
    Sketcher.Constraint("DistanceX", -1, 1, 0, 3, 2.5),
])
sketch11.setExpression("Constraints[1]", "Params.sketch11_diameter")
pocket10 = body.newObject("PartDesign::Pocket", "Pocket009")
pocket10.Profile = sketch11
pocket10.Type = "ThroughAll"
pocket10.Reversed = True

# Sketch on XZ plane
sketch12 = body.newObject("Sketcher::SketchObject", "Sketch011")
sketch12.AttachmentSupport = (doc.getObject("XZ_Plane"), [""])
sketch12.MapMode = "FlatFace"
sketch12.AttachmentOffset = App.Placement(Vector(0, 0, -11.215), App.Rotation())
sketch12.addGeometry([
    Part.Circle(Vector(-62.75, -19.413866, 0), Vector(0, 0, 1), 2.25),
    Part.Circle(Vector(-62.75, -7.413866, 0), Vector(0, 0, 1), 2.25),
    Part.Circle(Vector(36, 24, 0), Vector(0, 0, 1), 2.25),
    Part.Circle(Vector(48, 24, 0), Vector(0, 0, 1), 2.25),
], False)
sketch12.addConstraint([
    Sketcher.Constraint("Equal", 0, 1),
    Sketcher.Constraint("Equal", 1, 2),
    Sketcher.Constraint("Equal", 2, 3),
    Sketcher.Constraint("Horizontal", 2, 3, 3, 3),
    Sketcher.Constraint("Vertical", 0, 3, 1, 3),
    Sketcher.Constraint("Diameter", 0, 4.5),
    Sketcher.Constraint("DistanceX", -1, 1, 2, 3, 36.0),
    Sketcher.Constraint("DistanceY", -1, 1, 2, 3, 24.0),
    Sketcher.Constraint("DistanceX", -1, 1, 3, 3, 48.0),
    Sketcher.Constraint("DistanceY", 0, 3, 1, 3, 12.0),
    Sketcher.Constraint("DistanceX", 0, 3, -1, 1, 62.75),
    Sketcher.Constraint("DistanceY", 0, 3, -1, 1, 19.413866),
])
sketch12.setExpression("Constraints[5]", "Params.sketch12_diameter")
pocket11 = body.newObject("PartDesign::Pocket", "Pocket010")
pocket11.Profile = sketch12
pocket11.setExpression("Length", "Params.pocket11_length")
pocket11.Reversed = True

# Sketch on XZ plane
sketch13 = body.newObject("Sketcher::SketchObject", "Sketch012")
sketch13.AttachmentSupport = (doc.getObject("XZ_Plane"), [""])
sketch13.MapMode = "FlatFace"
sketch13.AttachmentOffset = App.Placement(Vector(0, 0, -4.6125), App.Rotation())
sketch13.addGeometry(Part.Circle(Vector(-23.330433, -8.75, 0), Vector(0, 0, 1), 1), False)
sketch13.addConstraint([
    Sketcher.Constraint("Diameter", 0, 2.0),
    Sketcher.Constraint("DistanceY", 0, 3, -1, 1, 8.75),
    Sketcher.Constraint("DistanceX", 0, 3, -1, 1, 23.330433),
])
sketch13.setExpression("Constraints[0]", "Params.sketch13_diameter")
pocket12 = body.newObject("PartDesign::Pocket", "Pocket011")
pocket12.Profile = sketch13
pocket12.setExpression("Length", "Params.pocket12_length")
pocket12.Reversed = True

doc.recompute()
